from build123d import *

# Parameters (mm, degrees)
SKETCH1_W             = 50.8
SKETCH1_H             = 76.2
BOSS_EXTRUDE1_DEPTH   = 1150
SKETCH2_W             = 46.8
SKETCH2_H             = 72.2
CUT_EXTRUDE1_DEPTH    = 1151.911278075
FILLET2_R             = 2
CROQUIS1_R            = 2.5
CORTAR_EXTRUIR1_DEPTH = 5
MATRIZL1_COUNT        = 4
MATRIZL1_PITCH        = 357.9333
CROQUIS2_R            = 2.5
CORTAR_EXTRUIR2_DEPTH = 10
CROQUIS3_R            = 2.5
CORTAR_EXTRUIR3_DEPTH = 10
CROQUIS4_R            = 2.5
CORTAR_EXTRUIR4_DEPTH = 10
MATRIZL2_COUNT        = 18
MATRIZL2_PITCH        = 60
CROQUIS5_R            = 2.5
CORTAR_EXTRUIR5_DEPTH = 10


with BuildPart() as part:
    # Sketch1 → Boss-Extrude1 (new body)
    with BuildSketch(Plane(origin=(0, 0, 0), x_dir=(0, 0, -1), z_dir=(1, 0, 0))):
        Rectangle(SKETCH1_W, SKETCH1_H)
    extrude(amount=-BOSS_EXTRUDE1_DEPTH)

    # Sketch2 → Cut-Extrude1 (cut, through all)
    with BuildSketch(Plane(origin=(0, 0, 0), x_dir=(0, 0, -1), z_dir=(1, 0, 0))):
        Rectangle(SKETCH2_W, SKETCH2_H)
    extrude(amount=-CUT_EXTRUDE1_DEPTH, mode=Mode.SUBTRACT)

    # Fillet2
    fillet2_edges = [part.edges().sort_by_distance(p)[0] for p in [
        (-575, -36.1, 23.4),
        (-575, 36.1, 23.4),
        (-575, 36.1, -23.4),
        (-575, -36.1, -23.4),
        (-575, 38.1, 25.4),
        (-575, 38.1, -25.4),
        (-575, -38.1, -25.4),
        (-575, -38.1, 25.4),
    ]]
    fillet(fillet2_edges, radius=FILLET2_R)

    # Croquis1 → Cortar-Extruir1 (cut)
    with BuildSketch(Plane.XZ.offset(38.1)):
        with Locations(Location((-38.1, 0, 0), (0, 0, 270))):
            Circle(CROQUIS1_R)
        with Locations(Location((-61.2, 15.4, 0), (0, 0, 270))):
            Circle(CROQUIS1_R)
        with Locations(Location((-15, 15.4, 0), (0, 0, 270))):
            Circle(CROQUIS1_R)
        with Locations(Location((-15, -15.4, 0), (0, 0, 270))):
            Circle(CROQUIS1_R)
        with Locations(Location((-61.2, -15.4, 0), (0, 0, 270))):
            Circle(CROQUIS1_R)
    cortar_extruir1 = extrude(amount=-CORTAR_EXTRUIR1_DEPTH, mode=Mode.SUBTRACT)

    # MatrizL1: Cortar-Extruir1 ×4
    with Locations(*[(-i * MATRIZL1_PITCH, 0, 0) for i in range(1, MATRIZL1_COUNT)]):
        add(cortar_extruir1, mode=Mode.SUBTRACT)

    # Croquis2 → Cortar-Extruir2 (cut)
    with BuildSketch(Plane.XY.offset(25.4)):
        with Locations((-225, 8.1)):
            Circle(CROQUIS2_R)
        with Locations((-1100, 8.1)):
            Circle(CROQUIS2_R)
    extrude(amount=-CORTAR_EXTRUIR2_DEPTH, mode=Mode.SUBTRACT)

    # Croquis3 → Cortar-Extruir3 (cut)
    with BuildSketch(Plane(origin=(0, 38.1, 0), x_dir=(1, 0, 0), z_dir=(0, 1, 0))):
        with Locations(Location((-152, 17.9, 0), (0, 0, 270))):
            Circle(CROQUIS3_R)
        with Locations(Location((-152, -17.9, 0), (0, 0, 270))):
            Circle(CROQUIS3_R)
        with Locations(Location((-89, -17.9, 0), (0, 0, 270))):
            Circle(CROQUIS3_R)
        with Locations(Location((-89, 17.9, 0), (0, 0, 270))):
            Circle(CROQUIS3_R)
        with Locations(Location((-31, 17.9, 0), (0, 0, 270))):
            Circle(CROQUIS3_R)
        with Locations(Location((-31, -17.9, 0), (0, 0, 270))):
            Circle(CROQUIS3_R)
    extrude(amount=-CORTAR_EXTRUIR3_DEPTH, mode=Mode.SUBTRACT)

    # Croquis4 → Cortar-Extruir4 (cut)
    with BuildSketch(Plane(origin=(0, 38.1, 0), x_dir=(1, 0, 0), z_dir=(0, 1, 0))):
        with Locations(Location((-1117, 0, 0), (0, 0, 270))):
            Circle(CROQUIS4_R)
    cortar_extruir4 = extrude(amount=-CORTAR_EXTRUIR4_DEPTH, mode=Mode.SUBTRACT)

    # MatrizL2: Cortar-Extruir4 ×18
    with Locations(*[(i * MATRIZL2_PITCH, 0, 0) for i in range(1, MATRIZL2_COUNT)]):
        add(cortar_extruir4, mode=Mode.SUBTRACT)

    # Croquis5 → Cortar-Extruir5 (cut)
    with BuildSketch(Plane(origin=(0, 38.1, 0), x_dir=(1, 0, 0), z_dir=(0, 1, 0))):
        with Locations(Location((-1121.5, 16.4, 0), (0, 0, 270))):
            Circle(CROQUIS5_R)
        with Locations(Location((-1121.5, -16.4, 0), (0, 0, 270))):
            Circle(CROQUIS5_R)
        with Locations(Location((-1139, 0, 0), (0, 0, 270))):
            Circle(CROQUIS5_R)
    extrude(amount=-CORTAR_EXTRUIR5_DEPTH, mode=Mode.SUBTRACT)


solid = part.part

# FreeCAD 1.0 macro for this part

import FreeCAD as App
import Part
import Sketcher
from FreeCAD import Vector


def edges_at(feature, points):
    """Names of the edges that pass closest to the given points."""
    edges = feature.Shape.Edges
    near = lambda p: min(range(len(edges)), key=lambda i: edges[i].distToShape(Part.Vertex(*p))[0])
    return sorted({f"Edge{near(p) + 1}" for p in points})

doc = App.newDocument("Part")
params = doc.addObject("Spreadsheet::Sheet", "Params")
for row, (alias, value) in enumerate([
    ("sketch1_width", "76.2 mm"),
    ("sketch1_height", "50.8 mm"),
    ("pad1_length", "1150 mm"),
    ("sketch2_width", "72.2 mm"),
    ("sketch2_height", "46.8 mm"),
    ("fillet_radius", "2 mm"),
    ("sketch3_diameter", "5 mm"),
    ("pocket2_length", "5 mm"),
    ("linearpattern_pitch", "357.9333 mm"),
    ("sketch4_diameter", "5 mm"),
    ("pocket3_length", "10 mm"),
    ("sketch5_diameter", "5 mm"),
    ("pocket4_length", "10 mm"),
    ("sketch6_diameter", "5 mm"),
    ("pocket5_length", "10 mm"),
    ("linearpattern2_pitch", "60 mm"),
    ("sketch7_diameter", "5 mm"),
    ("pocket6_length", "10 mm"),
], start=1):
    params.set(f"A{row}", alias)
    params.set(f"B{row}", "=" + value)
    params.setAlias(f"B{row}", alias)

body = doc.addObject("PartDesign::Body", "Body")

# Sketch on YZ plane
sketch1 = doc.addObject("Sketcher::SketchObject", "Sketch")
body.addObject(sketch1)
sketch1.AttachmentSupport = (doc.YZ_Plane, [""])
sketch1.MapMode = "FlatFace"
sketch1.addGeometry(Part.LineSegment(Vector(38, 25, 0), Vector(-38, 25, 0)), False)
sketch1.addGeometry(Part.LineSegment(Vector(-38, 25, 0), Vector(-38, -25, 0)), False)
sketch1.addGeometry(Part.LineSegment(Vector(-38, -25, 0), Vector(38, -25, 0)), False)
sketch1.addGeometry(Part.LineSegment(Vector(38, -25, 0), Vector(38, 25, 0)), False)
sketch1.addConstraint(Sketcher.Constraint("Coincident", 0, 2, 1, 1))
sketch1.addConstraint(Sketcher.Constraint("Coincident", 1, 2, 2, 1))
sketch1.addConstraint(Sketcher.Constraint("Coincident", 2, 2, 3, 1))
sketch1.addConstraint(Sketcher.Constraint("Coincident", 3, 2, 0, 1))
sketch1.addConstraint(Sketcher.Constraint("Horizontal", 0))
sketch1.addConstraint(Sketcher.Constraint("Vertical", 1))
sketch1.addConstraint(Sketcher.Constraint("Horizontal", 2))
sketch1.addConstraint(Sketcher.Constraint("Vertical", 3))
sketch1.addConstraint(Sketcher.Constraint("Symmetric", 0, 2, 2, 2, -1, 1))
sketch1.addConstraint(Sketcher.Constraint("DistanceX", 0, 2, 0, 1, 76.2))
sketch1.addConstraint(Sketcher.Constraint("DistanceY", 1, 2, 1, 1, 50.8))
sketch1.setExpression("Constraints[9]", "Params.sketch1_width")
sketch1.setExpression("Constraints[10]", "Params.sketch1_height")
pad1 = doc.addObject("PartDesign::Pad", "Pad")
body.addObject(pad1)
pad1.Profile = sketch1
pad1.setExpression("Length", "Params.pad1_length")
pad1.Reversed = True

# Sketch on YZ plane
sketch2 = doc.addObject("Sketcher::SketchObject", "Sketch001")
body.addObject(sketch2)
sketch2.AttachmentSupport = (doc.YZ_Plane, [""])
sketch2.MapMode = "FlatFace"
sketch2.addGeometry(Part.LineSegment(Vector(36, 23, 0), Vector(-36, 23, 0)), False)
sketch2.addGeometry(Part.LineSegment(Vector(-36, 23, 0), Vector(-36, -23, 0)), False)
sketch2.addGeometry(Part.LineSegment(Vector(-36, -23, 0), Vector(36, -23, 0)), False)
sketch2.addGeometry(Part.LineSegment(Vector(36, -23, 0), Vector(36, 23, 0)), False)
sketch2.addConstraint(Sketcher.Constraint("Coincident", 0, 2, 1, 1))
sketch2.addConstraint(Sketcher.Constraint("Coincident", 1, 2, 2, 1))
sketch2.addConstraint(Sketcher.Constraint("Coincident", 2, 2, 3, 1))
sketch2.addConstraint(Sketcher.Constraint("Coincident", 3, 2, 0, 1))
sketch2.addConstraint(Sketcher.Constraint("Horizontal", 0))
sketch2.addConstraint(Sketcher.Constraint("Vertical", 1))
sketch2.addConstraint(Sketcher.Constraint("Horizontal", 2))
sketch2.addConstraint(Sketcher.Constraint("Vertical", 3))
sketch2.addConstraint(Sketcher.Constraint("Symmetric", 0, 2, 2, 2, -1, 1))
sketch2.addConstraint(Sketcher.Constraint("DistanceX", 0, 2, 0, 1, 72.2))
sketch2.addConstraint(Sketcher.Constraint("DistanceY", 1, 2, 1, 1, 46.8))
sketch2.setExpression("Constraints[9]", "Params.sketch2_width")
sketch2.setExpression("Constraints[10]", "Params.sketch2_height")
pocket1 = doc.addObject("PartDesign::Pocket", "Pocket")
body.addObject(pocket1)
pocket1.Profile = sketch2
pocket1.Type = "ThroughAll"
doc.recompute()

fillet = doc.addObject("PartDesign::Fillet", "Fillet")
body.addObject(fillet)
fillet.Base = (pocket1, edges_at(pocket1, [
    (-575, -36.1, 23.4),
    (-575, 36.1, 23.4),
    (-575, 36.1, -23.4),
    (-575, -36.1, -23.4),
    (-575, 38.1, 25.4),
    (-575, 38.1, -25.4),
    (-575, -38.1, -25.4),
    (-575, -38.1, 25.4),
]))
fillet.setExpression("Radius", "Params.fillet_radius")

# Sketch on XZ plane
sketch3 = doc.addObject("Sketcher::SketchObject", "Sketch002")
body.addObject(sketch3)
sketch3.AttachmentSupport = (doc.XZ_Plane, [""])
sketch3.MapMode = "FlatFace"
sketch3.AttachmentOffset = App.Placement(Vector(0, 0, 38.1), App.Rotation())
sketch3.addGeometry(Part.Circle(Vector(-38.1, 0, 0), Vector(0, 0, 1), 2.5), False)
sketch3.addGeometry(Part.Circle(Vector(-61.2, 15.4, 0), Vector(0, 0, 1), 2.5), False)
sketch3.addGeometry(Part.Circle(Vector(-15, 15.4, 0), Vector(0, 0, 1), 2.5), False)
sketch3.addGeometry(Part.Circle(Vector(-15, -15.4, 0), Vector(0, 0, 1), 2.5), False)
sketch3.addGeometry(Part.Circle(Vector(-61.2, -15.4, 0), Vector(0, 0, 1), 2.5), False)
sketch3.addConstraint(Sketcher.Constraint("Equal", 0, 1))
sketch3.addConstraint(Sketcher.Constraint("Equal", 1, 2))
sketch3.addConstraint(Sketcher.Constraint("Equal", 2, 3))
sketch3.addConstraint(Sketcher.Constraint("Equal", 3, 4))
sketch3.addConstraint(Sketcher.Constraint("Symmetric", 2, 3, 3, 3, -1))
sketch3.addConstraint(Sketcher.Constraint("Symmetric", 1, 3, 4, 3, -1))
sketch3.addConstraint(Sketcher.Constraint("PointOnObject", 0, 3, -1))
sketch3.addConstraint(Sketcher.Constraint("Horizontal", 1, 3, 2, 3))
sketch3.addConstraint(Sketcher.Constraint("Diameter", 0, 5.0))
sketch3.addConstraint(Sketcher.Constraint("DistanceX", 2, 3, -1, 1, 15.0))
sketch3.addConstraint(Sketcher.Constraint("DistanceX", 0, 3, -1, 1, 38.1))
sketch3.addConstraint(Sketcher.Constraint("DistanceX", 1, 3, -1, 1, 61.2))
sketch3.addConstraint(Sketcher.Constraint("DistanceY", -1, 1, 1, 3, 15.4))
sketch3.setExpression("Constraints[8]", "Params.sketch3_diameter")
pocket2 = doc.addObject("PartDesign::Pocket", "Pocket001")
body.addObject(pocket2)
pocket2.Profile = sketch3
pocket2.setExpression("Length", "Params.pocket2_length")
doc.recompute()

linearpattern = doc.addObject("PartDesign::LinearPattern", "LinearPattern")
body.addObject(linearpattern)
linearpattern.Originals = [pocket2]
linearpattern.Direction = (doc.X_Axis, [""])
linearpattern.Mode = "offset"
linearpattern.setExpression("Offset", "Params.linearpattern_pitch")
linearpattern.Occurrences = 4
linearpattern.Reversed = True
body.Tip = linearpattern

# Sketch on XY plane
sketch4 = doc.addObject("Sketcher::SketchObject", "Sketch003")
body.addObject(sketch4)
sketch4.AttachmentSupport = (doc.XY_Plane, [""])
sketch4.MapMode = "FlatFace"
sketch4.AttachmentOffset = App.Placement(Vector(0, 0, 25.4), App.Rotation())
sketch4.addGeometry(Part.Circle(Vector(-225, 8.1, 0), Vector(0, 0, 1), 2.5), False)
sketch4.addGeometry(Part.Circle(Vector(-1100, 8.1, 0), Vector(0, 0, 1), 2.5), False)
sketch4.addConstraint(Sketcher.Constraint("Equal", 0, 1))
sketch4.addConstraint(Sketcher.Constraint("Horizontal", 0, 3, 1, 3))
sketch4.addConstraint(Sketcher.Constraint("Diameter", 0, 5.0))
sketch4.addConstraint(Sketcher.Constraint("DistanceX", 0, 3, -1, 1, 225.0))
sketch4.addConstraint(Sketcher.Constraint("DistanceX", 1, 3, -1, 1, 1100.0))
sketch4.addConstraint(Sketcher.Constraint("DistanceY", -1, 1, 0, 3, 8.1))
sketch4.setExpression("Constraints[2]", "Params.sketch4_diameter")
pocket3 = doc.addObject("PartDesign::Pocket", "Pocket002")
body.addObject(pocket3)
pocket3.Profile = sketch4
pocket3.setExpression("Length", "Params.pocket3_length")

# Sketch on XZ plane
sketch5 = doc.addObject("Sketcher::SketchObject", "Sketch004")
body.addObject(sketch5)
sketch5.AttachmentSupport = (doc.XZ_Plane, [""])
sketch5.MapMode = "FlatFace"
sketch5.AttachmentOffset = App.Placement(Vector(0, 0, -38.1), App.Rotation())
sketch5.addGeometry(Part.Circle(Vector(-152, -17.9, 0), Vector(0, 0, 1), 2.5), False)
sketch5.addGeometry(Part.Circle(Vector(-152, 17.9, 0), Vector(0, 0, 1), 2.5), False)
sketch5.addGeometry(Part.Circle(Vector(-89, 17.9, 0), Vector(0, 0, 1), 2.5), False)
sketch5.addGeometry(Part.Circle(Vector(-89, -17.9, 0), Vector(0, 0, 1), 2.5), False)
sketch5.addGeometry(Part.Circle(Vector(-31, -17.9, 0), Vector(0, 0, 1), 2.5), False)
sketch5.addGeometry(Part.Circle(Vector(-31, 17.9, 0), Vector(0, 0, 1), 2.5), False)
sketch5.addConstraint(Sketcher.Constraint("Equal", 0, 1))
sketch5.addConstraint(Sketcher.Constraint("Equal", 1, 2))
sketch5.addConstraint(Sketcher.Constraint("Equal", 2, 3))
sketch5.addConstraint(Sketcher.Constraint("Equal", 3, 4))
sketch5.addConstraint(Sketcher.Constraint("Equal", 4, 5))
sketch5.addConstraint(Sketcher.Constraint("Symmetric", 0, 3, 1, 3, -1))
sketch5.addConstraint(Sketcher.Constraint("Symmetric", 2, 3, 3, 3, -1))
sketch5.addConstraint(Sketcher.Constraint("Symmetric", 4, 3, 5, 3, -1))
sketch5.addConstraint(Sketcher.Constraint("Horizontal", 1, 3, 2, 3))
sketch5.addConstraint(Sketcher.Constraint("Horizontal", 3, 3, 4, 3))
sketch5.addConstraint(Sketcher.Constraint("Diameter", 0, 5.0))
sketch5.addConstraint(Sketcher.Constraint("DistanceX", 0, 3, -1, 1, 152.0))
sketch5.addConstraint(Sketcher.Constraint("DistanceX", 2, 3, -1, 1, 89.0))
sketch5.addConstraint(Sketcher.Constraint("DistanceX", 4, 3, -1, 1, 31.0))
sketch5.addConstraint(Sketcher.Constraint("DistanceY", 0, 3, -1, 1, 17.9))
sketch5.setExpression("Constraints[10]", "Params.sketch5_diameter")
pocket4 = doc.addObject("PartDesign::Pocket", "Pocket003")
body.addObject(pocket4)
pocket4.Profile = sketch5
pocket4.setExpression("Length", "Params.pocket4_length")
pocket4.Reversed = True

# Sketch on XZ plane
sketch6 = doc.addObject("Sketcher::SketchObject", "Sketch005")
body.addObject(sketch6)
sketch6.AttachmentSupport = (doc.XZ_Plane, [""])
sketch6.MapMode = "FlatFace"
sketch6.AttachmentOffset = App.Placement(Vector(0, 0, -38.1), App.Rotation())
sketch6.addGeometry(Part.Circle(Vector(-1117, 0, 0), Vector(0, 0, 1), 2.5), False)
sketch6.addConstraint(Sketcher.Constraint("PointOnObject", 0, 3, -1))
sketch6.addConstraint(Sketcher.Constraint("Diameter", 0, 5.0))
sketch6.addConstraint(Sketcher.Constraint("DistanceX", 0, 3, -1, 1, 1117.0))
sketch6.setExpression("Constraints[1]", "Params.sketch6_diameter")
pocket5 = doc.addObject("PartDesign::Pocket", "Pocket004")
body.addObject(pocket5)
pocket5.Profile = sketch6
pocket5.setExpression("Length", "Params.pocket5_length")
pocket5.Reversed = True
doc.recompute()

linearpattern2 = doc.addObject("PartDesign::LinearPattern", "LinearPattern001")
body.addObject(linearpattern2)
linearpattern2.Originals = [pocket5]
linearpattern2.Direction = (doc.X_Axis, [""])
linearpattern2.Mode = "offset"
linearpattern2.setExpression("Offset", "Params.linearpattern2_pitch")
linearpattern2.Occurrences = 18
body.Tip = linearpattern2

# Sketch on XZ plane
sketch7 = doc.addObject("Sketcher::SketchObject", "Sketch006")
body.addObject(sketch7)
sketch7.AttachmentSupport = (doc.XZ_Plane, [""])
sketch7.MapMode = "FlatFace"
sketch7.AttachmentOffset = App.Placement(Vector(0, 0, -38.1), App.Rotation())
sketch7.addGeometry(Part.Circle(Vector(-1121.5, -16.4, 0), Vector(0, 0, 1), 2.5), False)
sketch7.addGeometry(Part.Circle(Vector(-1121.5, 16.4, 0), Vector(0, 0, 1), 2.5), False)
sketch7.addGeometry(Part.Circle(Vector(-1139, 0, 0), Vector(0, 0, 1), 2.5), False)
sketch7.addConstraint(Sketcher.Constraint("Equal", 0, 1))
sketch7.addConstraint(Sketcher.Constraint("Equal", 1, 2))
sketch7.addConstraint(Sketcher.Constraint("Symmetric", 0, 3, 1, 3, -1))
sketch7.addConstraint(Sketcher.Constraint("PointOnObject", 2, 3, -1))
sketch7.addConstraint(Sketcher.Constraint("Diameter", 0, 5.0))
sketch7.addConstraint(Sketcher.Constraint("DistanceX", 2, 3, -1, 1, 1139.0))
sketch7.addConstraint(Sketcher.Constraint("DistanceX", 0, 3, -1, 1, 1121.5))
sketch7.addConstraint(Sketcher.Constraint("DistanceY", 0, 3, -1, 1, 16.4))
sketch7.setExpression("Constraints[4]", "Params.sketch7_diameter")
pocket6 = doc.addObject("PartDesign::Pocket", "Pocket005")
body.addObject(pocket6)
pocket6.Profile = sketch7
pocket6.setExpression("Length", "Params.pocket6_length")
pocket6.Reversed = True

doc.recompute()
